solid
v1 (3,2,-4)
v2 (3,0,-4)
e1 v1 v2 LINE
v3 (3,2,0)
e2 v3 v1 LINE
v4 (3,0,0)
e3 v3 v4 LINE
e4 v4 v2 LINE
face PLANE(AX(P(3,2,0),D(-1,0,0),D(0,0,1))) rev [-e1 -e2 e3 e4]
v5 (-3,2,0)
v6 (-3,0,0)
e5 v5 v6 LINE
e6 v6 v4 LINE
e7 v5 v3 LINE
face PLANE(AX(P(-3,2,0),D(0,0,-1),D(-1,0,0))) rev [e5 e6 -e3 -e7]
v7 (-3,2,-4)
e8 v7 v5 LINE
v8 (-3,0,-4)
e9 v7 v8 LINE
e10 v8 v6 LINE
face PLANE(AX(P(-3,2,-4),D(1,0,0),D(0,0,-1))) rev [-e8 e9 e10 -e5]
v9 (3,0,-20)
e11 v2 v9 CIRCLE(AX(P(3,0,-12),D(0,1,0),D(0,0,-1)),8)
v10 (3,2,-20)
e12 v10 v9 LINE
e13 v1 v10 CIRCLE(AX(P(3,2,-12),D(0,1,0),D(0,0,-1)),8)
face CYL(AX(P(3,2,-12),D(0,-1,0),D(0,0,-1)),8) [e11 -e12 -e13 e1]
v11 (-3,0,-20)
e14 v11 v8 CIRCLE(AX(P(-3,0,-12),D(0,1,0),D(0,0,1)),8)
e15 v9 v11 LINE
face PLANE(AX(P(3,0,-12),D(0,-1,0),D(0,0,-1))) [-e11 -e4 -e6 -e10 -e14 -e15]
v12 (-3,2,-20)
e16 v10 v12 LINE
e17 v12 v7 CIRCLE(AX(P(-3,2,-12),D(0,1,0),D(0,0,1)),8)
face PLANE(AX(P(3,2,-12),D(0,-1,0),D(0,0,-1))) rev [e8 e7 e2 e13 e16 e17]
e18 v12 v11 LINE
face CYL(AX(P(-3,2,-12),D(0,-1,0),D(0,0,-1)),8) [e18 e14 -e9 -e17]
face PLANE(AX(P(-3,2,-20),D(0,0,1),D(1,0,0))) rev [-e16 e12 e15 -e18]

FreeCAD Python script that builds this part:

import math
import FreeCAD as App
import Part
import Sketcher

doc = App.newDocument("Part")
body = doc.addObject("PartDesign::Body", "Body")

sketch1 = doc.addObject("Sketcher::SketchObject", "Sketch")
body.addObject(sketch1)
sketch1.AttachmentSupport = (doc.XZ_Plane, [""])
sketch1.MapMode = "FlatFace"
sketch1.addGeometry([
    Part.LineSegment(App.Vector(-3, -4, 0), App.Vector(-3, 0, 0)),
    Part.LineSegment(App.Vector(-3, 0, 0), App.Vector(3, 0, 0)),
    Part.LineSegment(App.Vector(3, 0, 0), App.Vector(3, -4, 0)),
    Part.ArcOfCircle(Part.Circle(App.Vector(3, -12, 0), App.Vector(0, 0, 1), 8), math.radians(-90), math.radians(90)),
    Part.LineSegment(App.Vector(3, -20, 0), App.Vector(-3, -20, 0)),
    Part.ArcOfCircle(Part.Circle(App.Vector(-3, -12, 0), App.Vector(0, 0, 1), 8), math.radians(90), math.radians(270)),
], False)
sketch1.addConstraint([
    Sketcher.Constraint("Coincident", 0, 2, 1, 1),
    Sketcher.Constraint("Coincident", 1, 2, 2, 1),
    Sketcher.Constraint("Coincident", 2, 2, 3, 2),
    Sketcher.Constraint("Tangent", 3, 1, 4, 1),
    Sketcher.Constraint("Tangent", 4, 2, 5, 2),
    Sketcher.Constraint("Coincident", 5, 1, 0, 1),
    Sketcher.Constraint("Vertical", 0),
    Sketcher.Constraint("Horizontal", 1),
    Sketcher.Constraint("Vertical", 2),
    Sketcher.Constraint("Horizontal", 4),
    Sketcher.Constraint("Equal", 3, 5),
    Sketcher.Constraint("Symmetric", 0, 2, 1, 2, -1, 1),
    Sketcher.Constraint("Vertical", 5, 3, 0, 2),
    Sketcher.Constraint("Vertical", 3, 3, 1, 2),
    Sketcher.Constraint("Radius", 3, 8.0),
    Sketcher.Constraint("DistanceX", 1, 1, 1, 2, 6.0),
    Sketcher.Constraint("DistanceY", 0, 1, 0, 2, 4.0),
])
pad1 = doc.addObject("PartDesign::Pad", "Pad")
body.addObject(pad1)
pad1.Profile = sketch1
pad1.Length = 2
pad1.Reversed = True

doc.recompute()
